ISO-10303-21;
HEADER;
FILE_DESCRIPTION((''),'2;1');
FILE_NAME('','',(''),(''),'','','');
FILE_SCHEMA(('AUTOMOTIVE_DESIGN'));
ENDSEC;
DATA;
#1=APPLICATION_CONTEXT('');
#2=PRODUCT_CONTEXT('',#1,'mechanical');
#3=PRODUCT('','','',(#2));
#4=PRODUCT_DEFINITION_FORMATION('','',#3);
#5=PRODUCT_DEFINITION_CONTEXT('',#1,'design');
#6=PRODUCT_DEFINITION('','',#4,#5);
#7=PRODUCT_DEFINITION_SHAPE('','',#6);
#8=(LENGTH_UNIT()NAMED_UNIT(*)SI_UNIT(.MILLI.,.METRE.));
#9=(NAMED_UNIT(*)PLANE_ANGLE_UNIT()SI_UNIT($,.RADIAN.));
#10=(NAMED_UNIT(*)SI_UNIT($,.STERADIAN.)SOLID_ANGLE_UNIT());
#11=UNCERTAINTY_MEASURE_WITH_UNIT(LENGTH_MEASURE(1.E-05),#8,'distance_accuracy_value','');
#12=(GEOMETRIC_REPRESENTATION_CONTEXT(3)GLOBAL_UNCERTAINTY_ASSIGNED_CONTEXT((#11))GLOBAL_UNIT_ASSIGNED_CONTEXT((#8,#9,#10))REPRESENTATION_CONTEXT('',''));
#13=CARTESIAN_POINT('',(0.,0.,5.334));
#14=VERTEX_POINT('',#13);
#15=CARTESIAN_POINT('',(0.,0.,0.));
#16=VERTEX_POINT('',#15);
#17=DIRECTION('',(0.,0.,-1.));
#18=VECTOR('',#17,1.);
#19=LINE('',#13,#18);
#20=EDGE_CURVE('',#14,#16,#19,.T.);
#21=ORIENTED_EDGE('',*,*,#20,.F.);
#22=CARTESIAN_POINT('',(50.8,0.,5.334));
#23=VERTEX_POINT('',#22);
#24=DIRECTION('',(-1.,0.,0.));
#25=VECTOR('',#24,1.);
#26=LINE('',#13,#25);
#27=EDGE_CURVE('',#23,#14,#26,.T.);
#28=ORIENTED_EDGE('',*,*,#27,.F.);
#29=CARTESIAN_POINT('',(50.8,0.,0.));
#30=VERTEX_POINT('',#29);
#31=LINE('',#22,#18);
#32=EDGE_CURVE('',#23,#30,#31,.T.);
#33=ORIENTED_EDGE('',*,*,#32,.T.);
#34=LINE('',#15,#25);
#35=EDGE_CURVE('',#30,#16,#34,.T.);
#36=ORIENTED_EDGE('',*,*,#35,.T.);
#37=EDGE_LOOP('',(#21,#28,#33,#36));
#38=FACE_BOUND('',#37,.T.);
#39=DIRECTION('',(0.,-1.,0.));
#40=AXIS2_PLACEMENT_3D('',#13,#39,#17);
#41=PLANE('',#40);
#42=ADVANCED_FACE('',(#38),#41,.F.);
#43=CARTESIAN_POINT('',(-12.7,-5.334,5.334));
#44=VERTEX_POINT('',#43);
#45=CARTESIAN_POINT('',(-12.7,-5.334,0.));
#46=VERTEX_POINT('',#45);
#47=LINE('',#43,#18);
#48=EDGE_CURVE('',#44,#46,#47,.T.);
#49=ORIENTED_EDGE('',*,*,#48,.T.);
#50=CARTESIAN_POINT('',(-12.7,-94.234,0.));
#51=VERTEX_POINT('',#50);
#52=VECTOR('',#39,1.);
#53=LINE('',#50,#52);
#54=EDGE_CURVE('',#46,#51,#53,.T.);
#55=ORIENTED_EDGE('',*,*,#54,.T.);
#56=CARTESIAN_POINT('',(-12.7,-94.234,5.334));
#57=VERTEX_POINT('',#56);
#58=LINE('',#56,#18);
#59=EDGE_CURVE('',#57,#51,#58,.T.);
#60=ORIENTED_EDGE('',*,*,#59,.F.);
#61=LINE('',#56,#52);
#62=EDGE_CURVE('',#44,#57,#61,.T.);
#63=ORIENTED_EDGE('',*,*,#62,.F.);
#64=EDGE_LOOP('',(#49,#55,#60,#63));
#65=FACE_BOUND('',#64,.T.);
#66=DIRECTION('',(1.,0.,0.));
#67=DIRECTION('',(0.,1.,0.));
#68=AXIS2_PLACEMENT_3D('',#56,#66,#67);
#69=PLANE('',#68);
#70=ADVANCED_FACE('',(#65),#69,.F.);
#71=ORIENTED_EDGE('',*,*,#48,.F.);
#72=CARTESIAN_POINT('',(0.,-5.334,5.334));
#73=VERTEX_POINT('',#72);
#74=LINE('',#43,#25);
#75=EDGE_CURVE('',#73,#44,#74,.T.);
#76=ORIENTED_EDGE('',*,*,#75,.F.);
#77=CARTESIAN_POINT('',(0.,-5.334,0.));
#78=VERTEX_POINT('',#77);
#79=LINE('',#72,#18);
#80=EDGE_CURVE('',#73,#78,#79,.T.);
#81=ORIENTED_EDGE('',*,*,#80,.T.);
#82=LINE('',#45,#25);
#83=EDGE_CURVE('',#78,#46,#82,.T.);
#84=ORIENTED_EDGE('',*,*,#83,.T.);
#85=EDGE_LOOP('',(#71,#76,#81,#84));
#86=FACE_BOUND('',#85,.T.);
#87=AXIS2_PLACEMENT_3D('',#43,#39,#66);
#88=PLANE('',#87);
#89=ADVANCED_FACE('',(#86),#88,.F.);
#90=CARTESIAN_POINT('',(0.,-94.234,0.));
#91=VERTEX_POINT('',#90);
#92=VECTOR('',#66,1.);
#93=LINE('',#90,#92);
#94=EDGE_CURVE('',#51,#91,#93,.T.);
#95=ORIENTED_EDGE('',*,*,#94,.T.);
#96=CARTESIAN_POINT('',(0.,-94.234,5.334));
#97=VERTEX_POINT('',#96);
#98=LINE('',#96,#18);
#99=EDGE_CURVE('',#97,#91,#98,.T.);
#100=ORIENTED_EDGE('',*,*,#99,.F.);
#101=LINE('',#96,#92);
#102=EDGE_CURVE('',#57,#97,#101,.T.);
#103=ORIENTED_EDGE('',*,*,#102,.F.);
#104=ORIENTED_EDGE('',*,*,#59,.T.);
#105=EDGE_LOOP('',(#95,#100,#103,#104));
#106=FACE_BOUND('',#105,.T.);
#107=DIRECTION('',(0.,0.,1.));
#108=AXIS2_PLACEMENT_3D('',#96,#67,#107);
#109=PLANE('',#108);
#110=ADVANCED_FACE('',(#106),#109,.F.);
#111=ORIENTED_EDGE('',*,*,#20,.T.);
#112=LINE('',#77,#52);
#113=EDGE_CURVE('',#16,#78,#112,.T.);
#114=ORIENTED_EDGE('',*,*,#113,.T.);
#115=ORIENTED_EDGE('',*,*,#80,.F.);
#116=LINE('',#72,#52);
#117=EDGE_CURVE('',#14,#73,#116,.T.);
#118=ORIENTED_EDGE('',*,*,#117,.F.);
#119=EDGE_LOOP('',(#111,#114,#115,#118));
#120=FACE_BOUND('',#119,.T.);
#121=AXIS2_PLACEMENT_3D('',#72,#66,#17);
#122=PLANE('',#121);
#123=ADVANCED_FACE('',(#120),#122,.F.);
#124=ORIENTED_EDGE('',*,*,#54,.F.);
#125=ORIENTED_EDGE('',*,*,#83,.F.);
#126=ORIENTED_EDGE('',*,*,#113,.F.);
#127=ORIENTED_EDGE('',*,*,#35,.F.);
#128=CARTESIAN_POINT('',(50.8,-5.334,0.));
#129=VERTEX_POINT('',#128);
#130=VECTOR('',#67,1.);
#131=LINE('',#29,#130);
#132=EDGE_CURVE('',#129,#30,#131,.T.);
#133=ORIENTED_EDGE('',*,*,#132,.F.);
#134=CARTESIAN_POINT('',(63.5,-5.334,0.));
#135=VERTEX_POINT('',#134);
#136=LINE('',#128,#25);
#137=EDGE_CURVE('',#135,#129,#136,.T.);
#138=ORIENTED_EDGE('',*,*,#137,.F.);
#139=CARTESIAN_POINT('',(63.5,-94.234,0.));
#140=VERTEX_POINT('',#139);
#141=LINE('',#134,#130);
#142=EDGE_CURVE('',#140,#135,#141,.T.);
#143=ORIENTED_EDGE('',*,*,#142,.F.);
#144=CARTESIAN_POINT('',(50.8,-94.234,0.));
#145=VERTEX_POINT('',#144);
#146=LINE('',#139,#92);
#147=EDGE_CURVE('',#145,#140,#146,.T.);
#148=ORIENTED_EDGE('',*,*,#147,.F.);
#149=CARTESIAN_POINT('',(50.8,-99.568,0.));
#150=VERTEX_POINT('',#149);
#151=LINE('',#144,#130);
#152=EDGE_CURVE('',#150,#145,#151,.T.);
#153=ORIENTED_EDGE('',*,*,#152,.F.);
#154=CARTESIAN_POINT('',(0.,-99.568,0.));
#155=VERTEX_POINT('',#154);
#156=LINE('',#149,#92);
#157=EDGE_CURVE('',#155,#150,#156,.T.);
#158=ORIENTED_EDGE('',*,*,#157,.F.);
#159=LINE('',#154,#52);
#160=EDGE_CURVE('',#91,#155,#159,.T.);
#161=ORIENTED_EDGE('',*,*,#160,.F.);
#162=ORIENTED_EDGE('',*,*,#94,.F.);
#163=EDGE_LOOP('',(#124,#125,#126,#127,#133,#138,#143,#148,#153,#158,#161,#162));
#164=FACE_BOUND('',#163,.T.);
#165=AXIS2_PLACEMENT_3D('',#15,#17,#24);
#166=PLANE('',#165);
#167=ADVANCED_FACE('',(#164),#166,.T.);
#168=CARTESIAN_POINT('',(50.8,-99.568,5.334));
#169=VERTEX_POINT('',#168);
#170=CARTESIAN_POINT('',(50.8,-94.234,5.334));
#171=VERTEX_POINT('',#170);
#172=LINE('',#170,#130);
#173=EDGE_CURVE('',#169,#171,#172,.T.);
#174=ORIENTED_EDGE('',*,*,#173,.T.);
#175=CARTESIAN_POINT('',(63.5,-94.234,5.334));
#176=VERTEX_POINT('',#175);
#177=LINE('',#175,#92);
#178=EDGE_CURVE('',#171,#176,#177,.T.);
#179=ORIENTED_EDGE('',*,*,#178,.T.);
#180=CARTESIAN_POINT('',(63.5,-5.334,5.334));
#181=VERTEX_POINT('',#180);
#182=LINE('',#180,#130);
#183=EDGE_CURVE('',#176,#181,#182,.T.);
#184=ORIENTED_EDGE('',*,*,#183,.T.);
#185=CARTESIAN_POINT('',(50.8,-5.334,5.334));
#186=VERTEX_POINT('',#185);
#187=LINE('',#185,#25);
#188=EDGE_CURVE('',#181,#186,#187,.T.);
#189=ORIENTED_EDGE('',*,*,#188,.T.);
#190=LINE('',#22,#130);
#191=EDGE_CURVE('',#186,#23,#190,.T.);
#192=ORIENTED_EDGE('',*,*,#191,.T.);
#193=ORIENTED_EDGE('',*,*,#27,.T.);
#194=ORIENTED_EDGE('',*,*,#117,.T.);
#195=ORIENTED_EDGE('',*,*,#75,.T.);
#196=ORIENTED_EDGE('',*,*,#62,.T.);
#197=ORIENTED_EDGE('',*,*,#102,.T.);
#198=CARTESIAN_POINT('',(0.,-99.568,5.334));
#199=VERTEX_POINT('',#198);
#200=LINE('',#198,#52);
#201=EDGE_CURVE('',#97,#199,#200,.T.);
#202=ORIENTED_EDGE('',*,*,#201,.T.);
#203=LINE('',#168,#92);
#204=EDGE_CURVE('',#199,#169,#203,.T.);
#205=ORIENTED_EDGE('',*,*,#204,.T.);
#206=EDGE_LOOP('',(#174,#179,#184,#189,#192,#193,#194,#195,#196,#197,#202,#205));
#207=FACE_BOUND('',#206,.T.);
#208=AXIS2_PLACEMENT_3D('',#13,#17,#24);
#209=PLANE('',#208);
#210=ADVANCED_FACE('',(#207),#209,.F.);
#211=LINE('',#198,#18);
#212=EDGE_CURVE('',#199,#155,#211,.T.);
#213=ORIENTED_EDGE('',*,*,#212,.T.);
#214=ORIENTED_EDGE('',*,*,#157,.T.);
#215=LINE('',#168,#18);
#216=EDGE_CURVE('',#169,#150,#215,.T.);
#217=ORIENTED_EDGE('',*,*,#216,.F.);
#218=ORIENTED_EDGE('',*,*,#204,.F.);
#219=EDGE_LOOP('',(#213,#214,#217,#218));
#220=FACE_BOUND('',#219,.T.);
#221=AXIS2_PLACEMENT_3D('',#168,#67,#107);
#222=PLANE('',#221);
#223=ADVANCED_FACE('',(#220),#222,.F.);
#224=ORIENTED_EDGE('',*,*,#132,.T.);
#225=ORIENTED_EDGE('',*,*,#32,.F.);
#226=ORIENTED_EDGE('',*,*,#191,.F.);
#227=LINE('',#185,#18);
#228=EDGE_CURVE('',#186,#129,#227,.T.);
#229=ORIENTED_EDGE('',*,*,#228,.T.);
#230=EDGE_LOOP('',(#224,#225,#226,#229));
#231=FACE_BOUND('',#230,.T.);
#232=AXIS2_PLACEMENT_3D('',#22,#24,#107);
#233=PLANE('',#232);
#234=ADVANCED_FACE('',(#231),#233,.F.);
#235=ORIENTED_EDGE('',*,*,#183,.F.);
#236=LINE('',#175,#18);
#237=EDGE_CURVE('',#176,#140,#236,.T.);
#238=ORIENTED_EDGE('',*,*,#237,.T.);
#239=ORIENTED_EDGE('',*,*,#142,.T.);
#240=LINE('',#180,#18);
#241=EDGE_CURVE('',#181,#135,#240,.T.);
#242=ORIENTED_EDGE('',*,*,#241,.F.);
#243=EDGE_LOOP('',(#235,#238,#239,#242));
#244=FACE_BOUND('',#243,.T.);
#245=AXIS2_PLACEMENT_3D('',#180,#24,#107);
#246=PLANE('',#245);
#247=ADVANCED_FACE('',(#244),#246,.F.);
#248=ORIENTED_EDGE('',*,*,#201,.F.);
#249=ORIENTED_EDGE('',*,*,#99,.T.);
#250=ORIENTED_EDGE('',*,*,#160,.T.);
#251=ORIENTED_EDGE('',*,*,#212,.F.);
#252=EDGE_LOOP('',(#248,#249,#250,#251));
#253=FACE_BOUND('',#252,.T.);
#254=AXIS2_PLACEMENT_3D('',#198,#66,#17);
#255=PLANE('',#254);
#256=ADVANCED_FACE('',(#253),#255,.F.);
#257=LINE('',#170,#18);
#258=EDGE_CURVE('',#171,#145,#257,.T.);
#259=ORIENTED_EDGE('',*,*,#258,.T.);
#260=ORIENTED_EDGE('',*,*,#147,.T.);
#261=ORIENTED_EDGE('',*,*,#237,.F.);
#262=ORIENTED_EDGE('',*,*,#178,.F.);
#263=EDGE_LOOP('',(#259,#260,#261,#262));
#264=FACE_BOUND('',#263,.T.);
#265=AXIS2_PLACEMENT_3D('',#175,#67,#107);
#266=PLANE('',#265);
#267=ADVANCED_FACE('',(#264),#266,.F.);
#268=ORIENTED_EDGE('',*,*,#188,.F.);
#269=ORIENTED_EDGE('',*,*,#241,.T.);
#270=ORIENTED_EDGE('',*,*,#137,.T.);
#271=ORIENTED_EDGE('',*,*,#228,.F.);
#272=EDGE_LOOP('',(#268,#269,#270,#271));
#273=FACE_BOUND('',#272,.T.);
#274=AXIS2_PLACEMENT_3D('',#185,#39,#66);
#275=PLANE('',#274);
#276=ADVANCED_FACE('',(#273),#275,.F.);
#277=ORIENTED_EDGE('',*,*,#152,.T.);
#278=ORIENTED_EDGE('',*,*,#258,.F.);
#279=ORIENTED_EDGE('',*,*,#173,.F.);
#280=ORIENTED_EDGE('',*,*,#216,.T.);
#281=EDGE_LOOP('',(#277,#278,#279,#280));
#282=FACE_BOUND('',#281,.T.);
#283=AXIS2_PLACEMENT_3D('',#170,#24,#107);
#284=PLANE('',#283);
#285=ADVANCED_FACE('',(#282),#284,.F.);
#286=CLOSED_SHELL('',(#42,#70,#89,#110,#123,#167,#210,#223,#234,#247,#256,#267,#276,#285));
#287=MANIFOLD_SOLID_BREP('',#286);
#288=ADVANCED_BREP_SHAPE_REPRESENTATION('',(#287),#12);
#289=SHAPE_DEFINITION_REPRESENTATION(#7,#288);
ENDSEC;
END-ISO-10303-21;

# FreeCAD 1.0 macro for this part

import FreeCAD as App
import Part
import Sketcher
Q = App.Units.Quantity


def add_polygon(sketch, points):
    """Adds a closed chain of lines whose ends are joined by coincident constraints."""
    first, n = sketch.GeometryCount, len(points)
    for a, b in zip(points, points[1:] + points[:1]):
        sketch.addGeometry(Part.LineSegment(App.Vector(*a, 0), App.Vector(*b, 0)), False)
    for i in range(n):
        sketch.addConstraint(Sketcher.Constraint("Coincident", first + i, 2, first + (i + 1) % n, 1))

doc = App.newDocument("Part")
body = doc.addObject("PartDesign::Body", "Body")

sketch1 = doc.addObject("Sketcher::SketchObject", "Sketch")
body.addObject(sketch1)
sketch1.AttachmentSupport = (doc.XY_Plane, [""])
sketch1.MapMode = "FlatFace"
add_polygon(sketch1, [(51, 0), (0, 0), (0, -5), (-13, -5), (-13, -94), (0, -94), (0, -100), (51, -100), (51, -94), (64, -94), (64, -5), (51, -5)])
sketch1.addConstraint([
    Sketcher.Constraint("Horizontal", 0),
    Sketcher.Constraint("Vertical", 1),
    Sketcher.Constraint("Horizontal", 2),
    Sketcher.Constraint("Vertical", 3),
    Sketcher.Constraint("Horizontal", 4),
    Sketcher.Constraint("Vertical", 5),
    Sketcher.Constraint("Horizontal", 6),
    Sketcher.Constraint("Vertical", 7),
    Sketcher.Constraint("Horizontal", 8),
    Sketcher.Constraint("Vertical", 9),
    Sketcher.Constraint("Horizontal", 10),
    Sketcher.Constraint("Vertical", 11),
    Sketcher.Constraint("Coincident", 0, 2, -1, 1),
    Sketcher.Constraint("PointOnObject", 4, 2, -2),
    Sketcher.Constraint("Horizontal", 4, 2, 7, 2),
    Sketcher.Constraint("Horizontal", 2, 2, 9, 2),
    Sketcher.Constraint("Vertical", 7, 2, 10, 2),
    Sketcher.Constraint("Equal", 4, 8),
    Sketcher.Constraint("Equal", 1, 5),
    Sketcher.Constraint("DistanceX", 0, 2, 0, 1, Q("2 in")),
    Sketcher.Constraint("DistanceX", 2, 2, 2, 1, Q("0.5 in")),
    Sketcher.Constraint("DistanceY", 3, 2, 3, 1, Q("3.5 in")),
    Sketcher.Constraint("DistanceY", 1, 2, 1, 1, Q("0.21 in")),
])
pad1 = doc.addObject("PartDesign::Pad", "Pad")
body.addObject(pad1)
pad1.Profile = sketch1
pad1.Length = Q("0.21 in")

doc.recompute()
